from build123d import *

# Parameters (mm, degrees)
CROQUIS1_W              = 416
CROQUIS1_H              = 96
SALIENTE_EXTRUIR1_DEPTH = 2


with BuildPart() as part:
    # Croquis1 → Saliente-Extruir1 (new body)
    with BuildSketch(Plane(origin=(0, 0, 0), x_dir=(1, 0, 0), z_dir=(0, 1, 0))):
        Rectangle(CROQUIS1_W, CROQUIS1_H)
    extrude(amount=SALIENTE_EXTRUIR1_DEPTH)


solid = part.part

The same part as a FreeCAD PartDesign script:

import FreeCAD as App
import Part
import Sketcher
Q = App.Units.Quantity

doc = App.newDocument("Part")
params = doc.addObject("Spreadsheet::Sheet", "Params")
for row, (alias, value) in enumerate([
    ("sketch1_width", "416 mm"),
    ("sketch1_height", "96 mm"),
    ("pad1_length", "2 mm"),
], start=1):
    params.set(f"A{row}", alias)
    params.set(f"B{row}", "=" + value)
    params.setAlias(f"B{row}", alias)

body = doc.addObject("PartDesign::Body", "Body")

sketch1 = doc.addObject("Sketcher::SketchObject", "Sketch")
body.addObject(sketch1)
sketch1.AttachmentSupport = (doc.XZ_Plane, [""])
sketch1.MapMode = "FlatFace"
sketch1.addGeometry(Part.LineSegment(App.Vector(-208, -48, 0), App.Vector(-208, 48, 0)), False)
sketch1.addGeometry(Part.LineSegment(App.Vector(-208, 48, 0), App.Vector(208, 48, 0)), False)
sketch1.addGeometry(Part.LineSegment(App.Vector(208, 48, 0), App.Vector(208, -48, 0)), False)
sketch1.addGeometry(Part.LineSegment(App.Vector(208, -48, 0), App.Vector(-208, -48, 0)), False)
sketch1.addConstraint(Sketcher.Constraint("Coincident", 0, 2, 1, 1))
sketch1.addConstraint(Sketcher.Constraint("Coincident", 1, 2, 2, 1))
sketch1.addConstraint(Sketcher.Constraint("Coincident", 2, 2, 3, 1))
sketch1.addConstraint(Sketcher.Constraint("Coincident", 3, 2, 0, 1))
sketch1.addConstraint(Sketcher.Constraint("Vertical", 0))
sketch1.addConstraint(Sketcher.Constraint("Horizontal", 1))
sketch1.addConstraint(Sketcher.Constraint("Vertical", 2))
sketch1.addConstraint(Sketcher.Constraint("Horizontal", 3))
sketch1.addConstraint(Sketcher.Constraint("Symmetric", 0, 2, 2, 2, -1, 1))
sketch1.addConstraint(Sketcher.Constraint("DistanceX", 1, 1, 1, 2, Q("416 mm")))
sketch1.addConstraint(Sketcher.Constraint("DistanceY", 0, 1, 0, 2, Q("96 mm")))
sketch1.setExpression("Constraints[9]", "Params.sketch1_width")
sketch1.setExpression("Constraints[10]", "Params.sketch1_height")
pad1 = doc.addObject("PartDesign::Pad", "Pad")
body.addObject(pad1)
pad1.Profile = sketch1
pad1.setExpression("Length", "Params.pad1_length")
pad1.Reversed = True

doc.recompute()
